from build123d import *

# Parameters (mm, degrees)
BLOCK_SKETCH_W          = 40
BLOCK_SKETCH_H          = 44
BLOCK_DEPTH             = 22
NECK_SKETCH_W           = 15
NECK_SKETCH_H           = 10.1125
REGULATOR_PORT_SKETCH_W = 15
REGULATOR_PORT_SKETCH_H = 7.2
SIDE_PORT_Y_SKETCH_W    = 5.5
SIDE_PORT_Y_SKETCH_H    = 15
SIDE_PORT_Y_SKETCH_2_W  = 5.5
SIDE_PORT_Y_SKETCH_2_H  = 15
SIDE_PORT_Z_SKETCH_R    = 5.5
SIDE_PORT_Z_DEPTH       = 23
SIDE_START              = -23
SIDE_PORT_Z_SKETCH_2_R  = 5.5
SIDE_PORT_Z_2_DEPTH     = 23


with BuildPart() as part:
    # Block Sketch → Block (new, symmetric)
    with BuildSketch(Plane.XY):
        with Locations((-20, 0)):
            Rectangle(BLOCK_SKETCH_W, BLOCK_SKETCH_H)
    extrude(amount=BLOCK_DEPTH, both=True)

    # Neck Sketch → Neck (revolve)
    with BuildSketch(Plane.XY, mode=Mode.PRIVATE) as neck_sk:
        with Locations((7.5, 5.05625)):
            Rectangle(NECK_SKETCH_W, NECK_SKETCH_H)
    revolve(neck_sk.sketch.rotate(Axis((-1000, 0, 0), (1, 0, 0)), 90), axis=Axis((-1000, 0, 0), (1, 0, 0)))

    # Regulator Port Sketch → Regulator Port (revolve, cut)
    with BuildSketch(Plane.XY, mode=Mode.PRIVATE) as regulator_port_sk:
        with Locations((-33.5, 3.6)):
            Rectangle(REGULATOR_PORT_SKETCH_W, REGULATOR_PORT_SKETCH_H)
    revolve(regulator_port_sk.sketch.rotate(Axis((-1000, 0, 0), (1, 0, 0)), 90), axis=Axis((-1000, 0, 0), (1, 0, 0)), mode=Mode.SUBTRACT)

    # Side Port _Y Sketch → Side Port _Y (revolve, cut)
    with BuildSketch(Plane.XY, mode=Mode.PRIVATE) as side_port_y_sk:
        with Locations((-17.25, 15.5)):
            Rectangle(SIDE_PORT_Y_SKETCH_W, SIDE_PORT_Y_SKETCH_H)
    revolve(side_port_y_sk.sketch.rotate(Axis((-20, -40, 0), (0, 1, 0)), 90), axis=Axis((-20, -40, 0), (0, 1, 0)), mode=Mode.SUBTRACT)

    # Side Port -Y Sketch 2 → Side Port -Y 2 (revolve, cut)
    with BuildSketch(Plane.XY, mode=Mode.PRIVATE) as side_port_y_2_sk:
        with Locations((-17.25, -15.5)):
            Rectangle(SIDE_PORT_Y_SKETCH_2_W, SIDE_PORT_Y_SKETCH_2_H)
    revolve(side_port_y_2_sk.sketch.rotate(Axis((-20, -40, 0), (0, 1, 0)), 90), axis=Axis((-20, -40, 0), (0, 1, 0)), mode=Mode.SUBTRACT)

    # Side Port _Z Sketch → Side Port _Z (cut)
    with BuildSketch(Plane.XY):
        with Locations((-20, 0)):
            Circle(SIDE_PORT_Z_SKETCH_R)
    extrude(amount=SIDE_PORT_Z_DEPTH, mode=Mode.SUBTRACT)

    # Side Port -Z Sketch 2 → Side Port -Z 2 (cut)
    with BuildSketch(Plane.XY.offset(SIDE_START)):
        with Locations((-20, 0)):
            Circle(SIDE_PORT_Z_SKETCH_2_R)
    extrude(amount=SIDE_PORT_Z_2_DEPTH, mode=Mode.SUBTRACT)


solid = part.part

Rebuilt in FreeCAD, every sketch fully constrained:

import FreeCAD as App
import Part
import Sketcher

V = App.Vector
Q = App.Units.Quantity

doc = App.newDocument("Part")
body = doc.addObject("PartDesign::Body", "Body")

# Sketch on XY plane
sketch1 = doc.addObject("Sketcher::SketchObject", "Sketch")
body.addObject(sketch1)
sketch1.AttachmentSupport = (doc.XY_Plane, [""])
sketch1.MapMode = "FlatFace"
sketch1.addGeometry([
    Part.LineSegment(V(-40, 22, 0), V(-40, -22, 0)),
    Part.LineSegment(V(-40, -22, 0), V(0, -22, 0)),
    Part.LineSegment(V(0, -22, 0), V(0, 22, 0)),
    Part.LineSegment(V(0, 22, 0), V(-40, 22, 0)),
], False)
sketch1.addConstraint([
    Sketcher.Constraint("Coincident", 0, 2, 1, 1),
    Sketcher.Constraint("Coincident", 1, 2, 2, 1),
    Sketcher.Constraint("Coincident", 2, 2, 3, 1),
    Sketcher.Constraint("Coincident", 3, 2, 0, 1),
    Sketcher.Constraint("Vertical", 0),
    Sketcher.Constraint("Horizontal", 1),
    Sketcher.Constraint("Vertical", 2),
    Sketcher.Constraint("Horizontal", 3),
    Sketcher.Constraint("Symmetric", 1, 2, 2, 2, -1, 1),
    Sketcher.Constraint("DistanceX", 1, 1, 1, 2, Q("40 mm")),
    Sketcher.Constraint("DistanceY", 0, 2, 0, 1, Q("44 mm")),
])
pad1 = doc.addObject("PartDesign::Pad", "Pad")
body.addObject(pad1)
pad1.Profile = sketch1
pad1.Length = 44
pad1.Midplane = True

# Sketch on XY plane
sketch2 = doc.addObject("Sketcher::SketchObject", "Sketch001")
body.addObject(sketch2)
sketch2.AttachmentSupport = (doc.XY_Plane, [""])
sketch2.MapMode = "FlatFace"
sketch2.addGeometry([
    Part.LineSegment(V(0, 10.1125, 0), V(0, 0, 0)),
    Part.LineSegment(V(0, 0, 0), V(15, 0, 0)),
    Part.LineSegment(V(15, 0, 0), V(15, 10.1125, 0)),
    Part.LineSegment(V(15, 10.1125, 0), V(0, 10.1125, 0)),
], False)
sketch2.addConstraint([
    Sketcher.Constraint("Coincident", 0, 2, 1, 1),
    Sketcher.Constraint("Coincident", 1, 2, 2, 1),
    Sketcher.Constraint("Coincident", 2, 2, 3, 1),
    Sketcher.Constraint("Coincident", 3, 2, 0, 1),
    Sketcher.Constraint("Vertical", 0),
    Sketcher.Constraint("Horizontal", 1),
    Sketcher.Constraint("Vertical", 2),
    Sketcher.Constraint("Horizontal", 3),
    Sketcher.Constraint("Coincident", 0, 2, -1, 1),
    Sketcher.Constraint("DistanceX", 1, 1, 1, 2, Q("15 mm")),
    Sketcher.Constraint("DistanceY", 0, 2, 0, 1, Q("10.1125 mm")),
])
revolution = doc.addObject("PartDesign::Revolution", "Revolution")
body.addObject(revolution)
revolution.Profile = sketch2
revolution.ReferenceAxis = (sketch2, ["H_Axis"])
revolution.Angle = 360

# Sketch on XY plane
sketch3 = doc.addObject("Sketcher::SketchObject", "Sketch002")
body.addObject(sketch3)
sketch3.AttachmentSupport = (doc.XY_Plane, [""])
sketch3.MapMode = "FlatFace"
sketch3.addGeometry([
    Part.LineSegment(V(-41, 7.2, 0), V(-41, 0, 0)),
    Part.LineSegment(V(-41, 0, 0), V(-26, 0, 0)),
    Part.LineSegment(V(-26, 0, 0), V(-26, 7.2, 0)),
    Part.LineSegment(V(-26, 7.2, 0), V(-41, 7.2, 0)),
], False)
sketch3.addConstraint([
    Sketcher.Constraint("Coincident", 0, 2, 1, 1),
    Sketcher.Constraint("Coincident", 1, 2, 2, 1),
    Sketcher.Constraint("Coincident", 2, 2, 3, 1),
    Sketcher.Constraint("Coincident", 3, 2, 0, 1),
    Sketcher.Constraint("Vertical", 0),
    Sketcher.Constraint("Horizontal", 1),
    Sketcher.Constraint("Vertical", 2),
    Sketcher.Constraint("Horizontal", 3),
    Sketcher.Constraint("PointOnObject", 0, 2, -1),
    Sketcher.Constraint("DistanceX", 1, 1, 1, 2, Q("15 mm")),
    Sketcher.Constraint("DistanceY", 0, 2, 0, 1, Q("7.2 mm")),
    Sketcher.Constraint("DistanceX", 0, 2, -1, 1, Q("41 mm")),
])
groove = doc.addObject("PartDesign::Groove", "Groove")
body.addObject(groove)
groove.Profile = sketch3
groove.ReferenceAxis = (sketch3, ["H_Axis"])
groove.Angle = 360

# Sketch on XY plane
sketch4 = doc.addObject("Sketcher::SketchObject", "Sketch003")
body.addObject(sketch4)
sketch4.AttachmentSupport = (doc.XY_Plane, [""])
sketch4.MapMode = "FlatFace"
sketch4.addGeometry([
    Part.LineSegment(V(-20, 23, 0), V(-20, 8, 0)),
    Part.LineSegment(V(-20, 8, 0), V(-14.5, 8, 0)),
    Part.LineSegment(V(-14.5, 8, 0), V(-14.5, 23, 0)),
    Part.LineSegment(V(-14.5, 23, 0), V(-20, 23, 0)),
], False)
sketch4.addGeometry(Part.LineSegment(V(-20, 8, 0), V(-20, 23, 0)), True)  # axis
sketch4.addConstraint([
    Sketcher.Constraint("Coincident", 0, 2, 1, 1),
    Sketcher.Constraint("Coincident", 1, 2, 2, 1),
    Sketcher.Constraint("Coincident", 2, 2, 3, 1),
    Sketcher.Constraint("Coincident", 3, 2, 0, 1),
    Sketcher.Constraint("Vertical", 0),
    Sketcher.Constraint("Horizontal", 1),
    Sketcher.Constraint("Vertical", 2),
    Sketcher.Constraint("Horizontal", 3),
    Sketcher.Constraint("Vertical", 4),
    Sketcher.Constraint("Coincident", 4, 1, 0, 2),
    Sketcher.Constraint("Horizontal", 2, 2, 4, 2),
    Sketcher.Constraint("DistanceY", 0, 2, 0, 1, Q("15 mm")),
    Sketcher.Constraint("DistanceX", 1, 1, 1, 2, Q("5.5 mm")),
    Sketcher.Constraint("DistanceX", 0, 2, -1, 1, Q("20 mm")),
    Sketcher.Constraint("DistanceY", -1, 1, 0, 2, Q("8 mm")),
])
groove2 = doc.addObject("PartDesign::Groove", "Groove001")
body.addObject(groove2)
groove2.Profile = sketch4
groove2.ReferenceAxis = (sketch4, ["Axis0"])
groove2.Angle = 360

# Sketch on XY plane
sketch5 = doc.addObject("Sketcher::SketchObject", "Sketch004")
body.addObject(sketch5)
sketch5.AttachmentSupport = (doc.XY_Plane, [""])
sketch5.MapMode = "FlatFace"
sketch5.addGeometry([
    Part.LineSegment(V(-20, -8, 0), V(-20, -23, 0)),
    Part.LineSegment(V(-20, -23, 0), V(-14.5, -23, 0)),
    Part.LineSegment(V(-14.5, -23, 0), V(-14.5, -8, 0)),
    Part.LineSegment(V(-14.5, -8, 0), V(-20, -8, 0)),
], False)
sketch5.addGeometry(Part.LineSegment(V(-20, -23, 0), V(-20, -8, 0)), True)  # axis
sketch5.addConstraint([
    Sketcher.Constraint("Coincident", 0, 2, 1, 1),
    Sketcher.Constraint("Coincident", 1, 2, 2, 1),
    Sketcher.Constraint("Coincident", 2, 2, 3, 1),
    Sketcher.Constraint("Coincident", 3, 2, 0, 1),
    Sketcher.Constraint("Vertical", 0),
    Sketcher.Constraint("Horizontal", 1),
    Sketcher.Constraint("Vertical", 2),
    Sketcher.Constraint("Horizontal", 3),
    Sketcher.Constraint("Vertical", 4),
    Sketcher.Constraint("Coincident", 4, 1, 0, 2),
    Sketcher.Constraint("Horizontal", 2, 2, 4, 2),
    Sketcher.Constraint("DistanceY", 0, 2, 0, 1, Q("15 mm")),
    Sketcher.Constraint("DistanceX", 1, 1, 1, 2, Q("5.5 mm")),
    Sketcher.Constraint("DistanceX", 0, 2, -1, 1, Q("20 mm")),
    Sketcher.Constraint("DistanceY", 0, 2, -1, 1, Q("23 mm")),
])
groove3 = doc.addObject("PartDesign::Groove", "Groove002")
body.addObject(groove3)
groove3.Profile = sketch5
groove3.ReferenceAxis = (sketch5, ["Axis0"])
groove3.Angle = 360

# Sketch on XY plane
sketch6 = doc.addObject("Sketcher::SketchObject", "Sketch005")
body.addObject(sketch6)
sketch6.AttachmentSupport = (doc.XY_Plane, [""])
sketch6.MapMode = "FlatFace"
sketch6.addGeometry(Part.Circle(V(-20, 0, 0), V(0, 0, 1), 5.5), False)
sketch6.addConstraint([
    Sketcher.Constraint("PointOnObject", 0, 3, -1),
    Sketcher.Constraint("Diameter", 0, Q("11 mm")),
    Sketcher.Constraint("DistanceX", 0, 3, -1, 1, Q("20 mm")),
])
pocket1 = doc.addObject("PartDesign::Pocket", "Pocket")
body.addObject(pocket1)
pocket1.Profile = sketch6
pocket1.Length = 23
pocket1.Reversed = True

# Sketch on XY plane
sketch7 = doc.addObject("Sketcher::SketchObject", "Sketch006")
body.addObject(sketch7)
sketch7.AttachmentSupport = (doc.XY_Plane, [""])
sketch7.MapMode = "FlatFace"
sketch7.AttachmentOffset = App.Placement(V(0, 0, -23), App.Rotation())
sketch7.addGeometry(Part.Circle(V(-20, 0, 0), V(0, 0, 1), 5.5), False)
sketch7.addConstraint([
    Sketcher.Constraint("PointOnObject", 0, 3, -1),
    Sketcher.Constraint("Diameter", 0, Q("11 mm")),
    Sketcher.Constraint("DistanceX", 0, 3, -1, 1, Q("20 mm")),
])
pocket2 = doc.addObject("PartDesign::Pocket", "Pocket001")
body.addObject(pocket2)
pocket2.Profile = sketch7
pocket2.Length = 23
pocket2.Reversed = True

doc.recompute()
